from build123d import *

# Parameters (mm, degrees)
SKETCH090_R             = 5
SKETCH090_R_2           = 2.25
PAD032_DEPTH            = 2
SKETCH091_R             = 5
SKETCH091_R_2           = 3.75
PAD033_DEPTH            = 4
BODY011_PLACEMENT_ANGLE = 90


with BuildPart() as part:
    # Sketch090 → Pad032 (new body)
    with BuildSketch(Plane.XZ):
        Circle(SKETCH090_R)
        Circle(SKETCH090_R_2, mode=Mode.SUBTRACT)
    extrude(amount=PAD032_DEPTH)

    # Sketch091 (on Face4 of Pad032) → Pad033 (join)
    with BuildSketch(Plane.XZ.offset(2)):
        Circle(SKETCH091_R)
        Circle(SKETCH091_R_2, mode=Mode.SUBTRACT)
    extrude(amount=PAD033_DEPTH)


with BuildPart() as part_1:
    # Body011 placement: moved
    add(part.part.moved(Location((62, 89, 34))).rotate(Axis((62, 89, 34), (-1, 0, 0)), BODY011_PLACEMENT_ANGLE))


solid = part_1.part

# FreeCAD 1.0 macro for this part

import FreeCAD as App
import Part
import Sketcher

V = App.Vector
Q = App.Units.Quantity

doc = App.newDocument("Part")
body = doc.addObject("PartDesign::Body", "Body")

sketch1 = body.newObject("Sketcher::SketchObject", "Sketch")
sketch1.AttachmentSupport = (doc.getObject("XZ_Plane"), [""])
sketch1.MapMode = "FlatFace"
sketch1.addGeometry(Part.Circle(V(0, 0, 0), V(0, 0, 1), 5), False)
sketch1.addGeometry(Part.Circle(V(0, 0, 0), V(0, 0, 1), 2.2), False)
sketch1.addConstraint(Sketcher.Constraint("Coincident", 0, 3, -1, 1))
sketch1.addConstraint(Sketcher.Constraint("Coincident", 1, 3, -1, 1))
sketch1.addConstraint(Sketcher.Constraint("Diameter", 0, Q("10 mm")))
sketch1.addConstraint(Sketcher.Constraint("Diameter", 1, Q("4.5 mm")))
pad1 = body.newObject("PartDesign::Pad", "Pad")
pad1.Profile = sketch1
pad1.Length = 2

sketch2 = body.newObject("Sketcher::SketchObject", "Sketch001")
sketch2.AttachmentSupport = (doc.getObject("XZ_Plane"), [""])
sketch2.MapMode = "FlatFace"
sketch2.AttachmentOffset = App.Placement(V(0, 0, 2), App.Rotation())
sketch2.addGeometry(Part.Circle(V(0, 0, 0), V(0, 0, 1), 5), False)
sketch2.addGeometry(Part.Circle(V(0, 0, 0), V(0, 0, 1), 3.8), False)
sketch2.addConstraint(Sketcher.Constraint("Coincident", 0, 3, -1, 1))
sketch2.addConstraint(Sketcher.Constraint("Coincident", 1, 3, -1, 1))
sketch2.addConstraint(Sketcher.Constraint("Diameter", 0, Q("10 mm")))
sketch2.addConstraint(Sketcher.Constraint("Diameter", 1, Q("7.5 mm")))
pad2 = body.newObject("PartDesign::Pad", "Pad001")
pad2.Profile = sketch2
pad2.Length = 4
body2 = doc.addObject("PartDesign::Body", "Body001")
doc.recompute()

body.Placement = App.Placement(V(62, 89, 34), App.Rotation(V(-1, 0, 0), 90))
boolean = body2.newObject("PartDesign::Boolean", "Boolean")
boolean.Type = "Fuse"
boolean.addObjects([body])

doc.recompute()
